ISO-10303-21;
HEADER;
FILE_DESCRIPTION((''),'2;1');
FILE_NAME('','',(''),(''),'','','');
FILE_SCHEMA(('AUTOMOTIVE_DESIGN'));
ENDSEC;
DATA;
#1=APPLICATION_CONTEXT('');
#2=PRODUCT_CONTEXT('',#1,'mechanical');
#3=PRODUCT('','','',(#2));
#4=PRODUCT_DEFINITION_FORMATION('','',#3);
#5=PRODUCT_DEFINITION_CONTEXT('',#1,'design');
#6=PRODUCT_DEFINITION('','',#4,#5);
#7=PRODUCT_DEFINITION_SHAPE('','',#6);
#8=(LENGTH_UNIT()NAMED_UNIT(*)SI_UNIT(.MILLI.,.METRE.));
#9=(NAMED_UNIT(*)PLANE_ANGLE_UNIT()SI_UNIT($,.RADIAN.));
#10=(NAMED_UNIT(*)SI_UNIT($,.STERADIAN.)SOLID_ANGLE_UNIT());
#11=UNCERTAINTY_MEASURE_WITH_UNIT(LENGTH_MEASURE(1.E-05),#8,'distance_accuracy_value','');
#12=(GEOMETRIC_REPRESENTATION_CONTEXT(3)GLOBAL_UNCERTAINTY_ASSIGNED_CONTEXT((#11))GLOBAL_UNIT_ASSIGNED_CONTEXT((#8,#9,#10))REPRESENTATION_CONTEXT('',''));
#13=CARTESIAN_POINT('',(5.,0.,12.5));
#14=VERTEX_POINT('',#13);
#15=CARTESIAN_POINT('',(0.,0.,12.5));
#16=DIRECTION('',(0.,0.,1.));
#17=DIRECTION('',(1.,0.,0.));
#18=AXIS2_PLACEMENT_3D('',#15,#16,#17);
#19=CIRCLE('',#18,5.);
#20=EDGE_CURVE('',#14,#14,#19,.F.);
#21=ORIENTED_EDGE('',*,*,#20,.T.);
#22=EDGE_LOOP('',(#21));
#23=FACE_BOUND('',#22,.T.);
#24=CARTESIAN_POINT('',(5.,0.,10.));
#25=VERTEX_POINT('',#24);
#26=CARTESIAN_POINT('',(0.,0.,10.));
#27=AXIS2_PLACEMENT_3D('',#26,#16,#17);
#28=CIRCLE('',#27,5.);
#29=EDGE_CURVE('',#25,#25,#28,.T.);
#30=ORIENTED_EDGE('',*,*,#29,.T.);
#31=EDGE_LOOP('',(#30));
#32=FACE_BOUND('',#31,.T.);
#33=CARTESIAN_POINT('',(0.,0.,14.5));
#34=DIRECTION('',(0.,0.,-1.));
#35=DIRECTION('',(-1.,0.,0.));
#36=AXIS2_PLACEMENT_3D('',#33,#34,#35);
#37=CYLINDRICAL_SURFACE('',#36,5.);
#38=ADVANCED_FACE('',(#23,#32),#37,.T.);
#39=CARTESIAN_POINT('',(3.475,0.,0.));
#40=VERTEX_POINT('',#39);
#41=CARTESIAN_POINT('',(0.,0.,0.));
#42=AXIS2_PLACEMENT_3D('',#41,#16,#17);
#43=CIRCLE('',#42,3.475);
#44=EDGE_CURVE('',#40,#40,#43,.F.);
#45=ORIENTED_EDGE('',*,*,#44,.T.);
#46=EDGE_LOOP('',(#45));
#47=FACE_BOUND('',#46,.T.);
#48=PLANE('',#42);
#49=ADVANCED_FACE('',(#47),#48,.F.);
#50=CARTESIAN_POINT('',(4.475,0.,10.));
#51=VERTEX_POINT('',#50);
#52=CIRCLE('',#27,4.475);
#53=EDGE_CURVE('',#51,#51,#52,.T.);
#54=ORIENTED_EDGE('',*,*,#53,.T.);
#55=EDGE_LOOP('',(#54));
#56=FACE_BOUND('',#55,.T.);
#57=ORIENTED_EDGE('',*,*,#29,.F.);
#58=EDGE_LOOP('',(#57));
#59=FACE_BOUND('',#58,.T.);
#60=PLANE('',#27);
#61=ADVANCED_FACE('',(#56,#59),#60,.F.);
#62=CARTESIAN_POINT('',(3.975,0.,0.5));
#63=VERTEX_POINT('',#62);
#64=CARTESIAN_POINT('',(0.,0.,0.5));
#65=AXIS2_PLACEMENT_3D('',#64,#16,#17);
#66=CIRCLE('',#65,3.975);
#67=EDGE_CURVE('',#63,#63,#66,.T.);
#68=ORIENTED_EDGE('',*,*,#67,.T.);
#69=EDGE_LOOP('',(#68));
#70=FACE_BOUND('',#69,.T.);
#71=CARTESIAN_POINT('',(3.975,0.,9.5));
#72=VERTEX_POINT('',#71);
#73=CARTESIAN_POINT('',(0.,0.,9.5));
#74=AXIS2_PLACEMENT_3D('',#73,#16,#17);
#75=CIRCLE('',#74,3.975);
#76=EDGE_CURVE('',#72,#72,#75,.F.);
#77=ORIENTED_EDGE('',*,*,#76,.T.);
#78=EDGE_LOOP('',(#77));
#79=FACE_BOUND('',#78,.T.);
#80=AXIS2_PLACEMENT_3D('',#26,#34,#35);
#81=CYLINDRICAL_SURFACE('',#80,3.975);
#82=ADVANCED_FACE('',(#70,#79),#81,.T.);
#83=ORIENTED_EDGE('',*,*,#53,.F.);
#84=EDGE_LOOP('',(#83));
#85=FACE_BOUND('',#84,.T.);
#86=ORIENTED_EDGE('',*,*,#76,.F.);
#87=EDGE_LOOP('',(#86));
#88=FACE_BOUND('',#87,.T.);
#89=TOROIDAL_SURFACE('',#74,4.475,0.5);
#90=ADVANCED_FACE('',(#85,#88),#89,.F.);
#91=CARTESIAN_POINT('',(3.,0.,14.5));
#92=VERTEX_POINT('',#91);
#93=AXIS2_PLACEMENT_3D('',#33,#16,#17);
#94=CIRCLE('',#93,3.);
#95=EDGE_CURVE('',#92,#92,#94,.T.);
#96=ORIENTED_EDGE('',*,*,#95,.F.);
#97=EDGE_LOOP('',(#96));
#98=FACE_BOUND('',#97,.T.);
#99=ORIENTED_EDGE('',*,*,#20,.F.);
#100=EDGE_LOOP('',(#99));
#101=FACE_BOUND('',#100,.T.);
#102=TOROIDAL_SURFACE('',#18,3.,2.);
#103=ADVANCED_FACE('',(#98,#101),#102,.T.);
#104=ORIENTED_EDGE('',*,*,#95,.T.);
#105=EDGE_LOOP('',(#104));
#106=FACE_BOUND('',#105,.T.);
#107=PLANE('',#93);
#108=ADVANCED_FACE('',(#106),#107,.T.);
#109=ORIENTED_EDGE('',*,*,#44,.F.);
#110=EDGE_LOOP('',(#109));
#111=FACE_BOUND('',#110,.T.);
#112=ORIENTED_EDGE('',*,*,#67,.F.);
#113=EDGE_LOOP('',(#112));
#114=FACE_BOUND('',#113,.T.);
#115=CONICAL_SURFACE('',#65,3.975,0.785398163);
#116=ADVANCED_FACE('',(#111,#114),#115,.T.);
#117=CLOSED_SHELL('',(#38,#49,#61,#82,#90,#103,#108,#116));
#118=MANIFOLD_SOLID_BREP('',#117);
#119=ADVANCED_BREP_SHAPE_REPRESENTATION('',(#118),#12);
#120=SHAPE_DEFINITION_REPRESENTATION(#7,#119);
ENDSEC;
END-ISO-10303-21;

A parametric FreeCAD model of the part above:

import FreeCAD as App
import Part
import Sketcher

V = App.Vector


def edges_at(feature, points):
    """Names of the edges that pass closest to the given points."""
    edges = feature.Shape.Edges
    near = lambda p: min(range(len(edges)), key=lambda i: edges[i].distToShape(Part.Vertex(*p))[0])
    return sorted({f"Edge{near(p) + 1}" for p in points})

doc = App.newDocument("Part")
body = doc.addObject("PartDesign::Body", "Body")

# Sketch on XY plane
sketch1 = doc.addObject("Sketcher::SketchObject", "Sketch")
body.addObject(sketch1)
sketch1.AttachmentSupport = (doc.XY_Plane, [""])
sketch1.MapMode = "FlatFace"
sketch1.addGeometry(Part.Circle(V(0, 0, 0), V(0, 0, 1), 4), False)
sketch1.addConstraint([
    Sketcher.Constraint("Coincident", 0, 3, -1, 1),
    Sketcher.Constraint("Diameter", 0, 7.95),
])
pad1 = doc.addObject("PartDesign::Pad", "Pad")
body.addObject(pad1)
pad1.Profile = sketch1
pad1.Length = 10

# Sketch on XY plane
sketch2 = doc.addObject("Sketcher::SketchObject", "Sketch001")
body.addObject(sketch2)
sketch2.AttachmentSupport = (doc.XY_Plane, [""])
sketch2.MapMode = "FlatFace"
sketch2.AttachmentOffset = App.Placement(V(0, 0, 10), App.Rotation())
sketch2.addGeometry(Part.Circle(V(0, 0, 0), V(0, 0, 1), 5), False)
sketch2.addConstraint([
    Sketcher.Constraint("Coincident", 0, 3, -1, 1),
    Sketcher.Constraint("Diameter", 0, 10.0),
])
pad2 = doc.addObject("PartDesign::Pad", "Pad001")
body.addObject(pad2)
pad2.Profile = sketch2
pad2.Length = 4.5
doc.recompute()

fillet = doc.addObject("PartDesign::Fillet", "Fillet")
body.addObject(fillet)
fillet.Base = (pad2, edges_at(pad2, [(-5, 0, 14.5)]))
fillet.Radius = 2
doc.recompute()

fillet2 = doc.addObject("PartDesign::Fillet", "Fillet001")
body.addObject(fillet2)
fillet2.Base = (fillet, edges_at(fillet, [(-3.975, 0, 10)]))
fillet2.Radius = 0.5
doc.recompute()

chamfer = doc.addObject("PartDesign::Chamfer", "Chamfer")
body.addObject(chamfer)
chamfer.Base = (fillet2, edges_at(fillet2, [(-3.975, 0, 0)]))
chamfer.Size = 0.5

doc.recompute()
